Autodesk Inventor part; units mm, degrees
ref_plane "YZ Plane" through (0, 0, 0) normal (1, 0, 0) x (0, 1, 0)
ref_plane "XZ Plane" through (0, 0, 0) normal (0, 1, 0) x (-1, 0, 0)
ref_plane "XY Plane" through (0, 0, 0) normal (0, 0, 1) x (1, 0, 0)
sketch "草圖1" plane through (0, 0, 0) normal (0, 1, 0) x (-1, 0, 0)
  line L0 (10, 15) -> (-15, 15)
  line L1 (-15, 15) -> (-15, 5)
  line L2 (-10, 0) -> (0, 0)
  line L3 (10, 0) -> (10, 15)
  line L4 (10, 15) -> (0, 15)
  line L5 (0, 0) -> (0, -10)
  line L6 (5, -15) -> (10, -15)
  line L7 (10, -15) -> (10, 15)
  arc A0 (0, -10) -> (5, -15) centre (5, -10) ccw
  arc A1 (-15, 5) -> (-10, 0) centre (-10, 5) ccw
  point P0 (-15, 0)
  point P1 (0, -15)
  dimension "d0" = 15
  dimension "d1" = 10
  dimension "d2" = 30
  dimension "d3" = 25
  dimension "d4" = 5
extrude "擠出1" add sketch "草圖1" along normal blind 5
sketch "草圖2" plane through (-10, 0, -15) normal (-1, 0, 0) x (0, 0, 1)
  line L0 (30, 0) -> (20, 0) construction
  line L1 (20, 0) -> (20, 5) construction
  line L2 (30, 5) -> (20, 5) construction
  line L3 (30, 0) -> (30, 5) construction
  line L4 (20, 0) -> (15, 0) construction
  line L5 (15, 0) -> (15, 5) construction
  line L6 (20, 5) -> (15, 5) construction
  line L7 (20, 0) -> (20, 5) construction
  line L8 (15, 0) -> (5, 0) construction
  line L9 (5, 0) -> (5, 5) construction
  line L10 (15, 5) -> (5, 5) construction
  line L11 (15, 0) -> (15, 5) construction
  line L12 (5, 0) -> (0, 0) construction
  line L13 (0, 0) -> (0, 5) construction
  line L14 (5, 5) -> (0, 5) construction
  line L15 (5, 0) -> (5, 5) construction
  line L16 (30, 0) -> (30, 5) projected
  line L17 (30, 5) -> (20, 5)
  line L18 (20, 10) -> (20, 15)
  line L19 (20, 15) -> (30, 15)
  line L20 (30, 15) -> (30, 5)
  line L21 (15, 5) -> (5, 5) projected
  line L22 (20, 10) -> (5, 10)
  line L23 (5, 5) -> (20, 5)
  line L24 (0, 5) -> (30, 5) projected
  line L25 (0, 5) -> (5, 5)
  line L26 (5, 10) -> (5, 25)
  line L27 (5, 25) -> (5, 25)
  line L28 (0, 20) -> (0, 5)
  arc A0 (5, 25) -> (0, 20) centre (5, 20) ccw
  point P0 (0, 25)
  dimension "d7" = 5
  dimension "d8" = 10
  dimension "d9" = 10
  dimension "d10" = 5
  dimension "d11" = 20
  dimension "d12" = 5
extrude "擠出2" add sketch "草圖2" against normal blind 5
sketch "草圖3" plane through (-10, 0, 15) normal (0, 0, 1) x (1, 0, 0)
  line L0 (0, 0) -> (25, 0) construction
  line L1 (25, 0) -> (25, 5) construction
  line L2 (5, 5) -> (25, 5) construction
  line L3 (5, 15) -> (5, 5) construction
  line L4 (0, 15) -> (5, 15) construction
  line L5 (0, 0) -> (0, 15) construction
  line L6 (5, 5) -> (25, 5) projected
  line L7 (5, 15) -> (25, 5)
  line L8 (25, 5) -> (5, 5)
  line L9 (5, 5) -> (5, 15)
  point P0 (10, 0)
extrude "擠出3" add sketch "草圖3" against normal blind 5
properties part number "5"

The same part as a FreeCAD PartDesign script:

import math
import FreeCAD as App
import Part
import Sketcher
from FreeCAD import Vector


def add_polygon(sketch, points):
    """Adds a closed chain of lines whose ends are joined by coincident constraints."""
    first, n = sketch.GeometryCount, len(points)
    for a, b in zip(points, points[1:] + points[:1]):
        sketch.addGeometry(Part.LineSegment(App.Vector(*a, 0), App.Vector(*b, 0)), False)
    for i in range(n):
        sketch.addConstraint(Sketcher.Constraint("Coincident", first + i, 2, first + (i + 1) % n, 1))

doc = App.newDocument("Part")
body = doc.addObject("PartDesign::Body", "Body")

# Sketch on XZ plane
sketch1 = doc.addObject("Sketcher::SketchObject", "Sketch")
body.addObject(sketch1)
sketch1.AttachmentSupport = (doc.XZ_Plane, [""])
sketch1.MapMode = "FlatFace"
sketch1.addGeometry(Part.LineSegment(Vector(-10, -15, 0), Vector(-10, 15, 0)), False)
sketch1.addGeometry(Part.LineSegment(Vector(-10, 15, 0), Vector(15, 15, 0)), False)
sketch1.addGeometry(Part.LineSegment(Vector(15, 15, 0), Vector(15, 5, 0)), False)
sketch1.addGeometry(Part.ArcOfCircle(Part.Circle(Vector(10, 5, 0), Vector(0, 0, 1), 5), math.radians(-90), math.radians(0)), False)
sketch1.addGeometry(Part.LineSegment(Vector(10, 0, 0), Vector(0, 0, 0)), False)
sketch1.addGeometry(Part.LineSegment(Vector(0, 0, 0), Vector(0, -10, 0)), False)
sketch1.addGeometry(Part.ArcOfCircle(Part.Circle(Vector(-5, -10, 0), Vector(0, 0, 1), 5), math.radians(-90), math.radians(0)), False)
sketch1.addGeometry(Part.LineSegment(Vector(-5, -15, 0), Vector(-10, -15, 0)), False)
sketch1.addConstraint(Sketcher.Constraint("Coincident", 0, 2, 1, 1))
sketch1.addConstraint(Sketcher.Constraint("Coincident", 1, 2, 2, 1))
sketch1.addConstraint(Sketcher.Constraint("Tangent", 2, 2, 3, 2))
sketch1.addConstraint(Sketcher.Constraint("Tangent", 3, 1, 4, 1))
sketch1.addConstraint(Sketcher.Constraint("Coincident", 4, 2, 5, 1))
sketch1.addConstraint(Sketcher.Constraint("Tangent", 5, 2, 6, 2))
sketch1.addConstraint(Sketcher.Constraint("Tangent", 6, 1, 7, 1))
sketch1.addConstraint(Sketcher.Constraint("Coincident", 7, 2, 0, 1))
sketch1.addConstraint(Sketcher.Constraint("Vertical", 0))
sketch1.addConstraint(Sketcher.Constraint("Horizontal", 1))
sketch1.addConstraint(Sketcher.Constraint("Vertical", 2))
sketch1.addConstraint(Sketcher.Constraint("Horizontal", 4))
sketch1.addConstraint(Sketcher.Constraint("Vertical", 5))
sketch1.addConstraint(Sketcher.Constraint("Horizontal", 7))
sketch1.addConstraint(Sketcher.Constraint("Coincident", 4, 2, -1, 1))
sketch1.addConstraint(Sketcher.Constraint("Equal", 3, 6))
sketch1.addConstraint(Sketcher.Constraint("Equal", 4, 2))
sketch1.addConstraint(Sketcher.Constraint("Equal", 2, 5))
sketch1.addConstraint(Sketcher.Constraint("Radius", 3, 5.0))
sketch1.addConstraint(Sketcher.Constraint("DistanceX", 1, 1, 1, 2, 25.0))
sketch1.addConstraint(Sketcher.Constraint("DistanceX", 4, 2, 4, 1, 10.0))
pad1 = doc.addObject("PartDesign::Pad", "Pad")
body.addObject(pad1)
pad1.Profile = sketch1
pad1.Length = 5
pad1.Reversed = True

# Sketch on YZ plane
sketch2 = doc.addObject("Sketcher::SketchObject", "Sketch001")
body.addObject(sketch2)
sketch2.AttachmentSupport = (doc.YZ_Plane, [""])
sketch2.MapMode = "FlatFace"
sketch2.AttachmentOffset = App.Placement(Vector(0, 0, -10), App.Rotation())
sketch2.addGeometry(Part.LineSegment(Vector(5, -15, 0), Vector(5, 15, 0)), False)
sketch2.addGeometry(Part.LineSegment(Vector(5, 15, 0), Vector(15, 15, 0)), False)
sketch2.addGeometry(Part.LineSegment(Vector(15, 15, 0), Vector(15, 5, 0)), False)
sketch2.addGeometry(Part.LineSegment(Vector(15, 5, 0), Vector(10, 5, 0)), False)
sketch2.addGeometry(Part.LineSegment(Vector(10, 5, 0), Vector(10, -10, 0)), False)
sketch2.addGeometry(Part.LineSegment(Vector(10, -10, 0), Vector(25, -10, 0)), False)
sketch2.addGeometry(Part.ArcOfCircle(Part.Circle(Vector(20, -10, 0), Vector(0, 0, 1), 5), math.radians(-90), math.radians(0)), False)
sketch2.addGeometry(Part.LineSegment(Vector(20, -15, 0), Vector(5, -15, 0)), False)
sketch2.addConstraint(Sketcher.Constraint("Coincident", 0, 2, 1, 1))
sketch2.addConstraint(Sketcher.Constraint("Coincident", 1, 2, 2, 1))
sketch2.addConstraint(Sketcher.Constraint("Coincident", 2, 2, 3, 1))
sketch2.addConstraint(Sketcher.Constraint("Coincident", 3, 2, 4, 1))
sketch2.addConstraint(Sketcher.Constraint("Coincident", 4, 2, 5, 1))
sketch2.addConstraint(Sketcher.Constraint("Coincident", 5, 2, 6, 2))
sketch2.addConstraint(Sketcher.Constraint("Tangent", 6, 1, 7, 1))
sketch2.addConstraint(Sketcher.Constraint("Coincident", 7, 2, 0, 1))
sketch2.addConstraint(Sketcher.Constraint("Vertical", 0))
sketch2.addConstraint(Sketcher.Constraint("Horizontal", 1))
sketch2.addConstraint(Sketcher.Constraint("Vertical", 2))
sketch2.addConstraint(Sketcher.Constraint("Horizontal", 3))
sketch2.addConstraint(Sketcher.Constraint("Vertical", 4))
sketch2.addConstraint(Sketcher.Constraint("Horizontal", 5))
sketch2.addConstraint(Sketcher.Constraint("Horizontal", 7))
sketch2.addConstraint(Sketcher.Constraint("Horizontal", 6, 3, 4, 2))
sketch2.addConstraint(Sketcher.Constraint("Equal", 5, 7))
sketch2.addConstraint(Sketcher.Constraint("Equal", 1, 2))
sketch2.addConstraint(Sketcher.Constraint("Equal", 7, 4))
sketch2.addConstraint(Sketcher.Constraint("Radius", 6, 5.0))
sketch2.addConstraint(Sketcher.Constraint("DistanceX", 1, 1, 1, 2, 10.0))
sketch2.addConstraint(Sketcher.Constraint("DistanceX", -1, 1, 6, 3, 20.0))
sketch2.addConstraint(Sketcher.Constraint("DistanceY", 6, 3, -1, 1, 10.0))
sketch2.addConstraint(Sketcher.Constraint("DistanceX", -1, 1, 0, 2, 5.0))
pad2 = doc.addObject("PartDesign::Pad", "Pad001")
body.addObject(pad2)
pad2.Profile = sketch2
pad2.Length = 5

# Sketch on XY plane
sketch3 = doc.addObject("Sketcher::SketchObject", "Sketch002")
body.addObject(sketch3)
sketch3.AttachmentSupport = (doc.XY_Plane, [""])
sketch3.MapMode = "FlatFace"
sketch3.AttachmentOffset = App.Placement(Vector(0, 0, 15), App.Rotation())
add_polygon(sketch3, [(-5, 15), (-5, 5), (15, 5)])  # lines 0-2
sketch3.addConstraint(Sketcher.Constraint("Vertical", 0))
sketch3.addConstraint(Sketcher.Constraint("Horizontal", 1))
sketch3.addConstraint(Sketcher.Constraint("DistanceX", 1, 1, 1, 2, 20.0))
sketch3.addConstraint(Sketcher.Constraint("DistanceY", 0, 2, 0, 1, 10.0))
sketch3.addConstraint(Sketcher.Constraint("DistanceX", 0, 2, -1, 1, 5.0))
sketch3.addConstraint(Sketcher.Constraint("DistanceY", -1, 1, 0, 2, 5.0))
pad3 = doc.addObject("PartDesign::Pad", "Pad002")
body.addObject(pad3)
pad3.Profile = sketch3
pad3.Length = 5
pad3.Reversed = True

doc.recompute()
